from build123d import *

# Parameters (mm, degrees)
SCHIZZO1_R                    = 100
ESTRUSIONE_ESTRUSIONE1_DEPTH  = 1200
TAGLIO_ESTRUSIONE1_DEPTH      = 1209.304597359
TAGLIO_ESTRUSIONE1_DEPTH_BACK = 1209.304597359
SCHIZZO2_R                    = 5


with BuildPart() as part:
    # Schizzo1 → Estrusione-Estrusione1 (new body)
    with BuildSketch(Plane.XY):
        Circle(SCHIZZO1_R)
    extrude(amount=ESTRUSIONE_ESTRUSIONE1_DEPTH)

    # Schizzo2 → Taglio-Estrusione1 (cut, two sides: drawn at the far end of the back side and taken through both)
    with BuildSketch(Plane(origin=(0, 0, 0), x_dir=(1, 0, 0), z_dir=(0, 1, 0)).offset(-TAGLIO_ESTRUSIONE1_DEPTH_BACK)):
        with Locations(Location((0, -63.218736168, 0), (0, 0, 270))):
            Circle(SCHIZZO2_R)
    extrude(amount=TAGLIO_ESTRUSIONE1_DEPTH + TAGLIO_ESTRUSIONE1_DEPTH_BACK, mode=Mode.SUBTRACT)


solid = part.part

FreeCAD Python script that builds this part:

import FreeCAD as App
import Part
import Sketcher
Q = App.Units.Quantity

doc = App.newDocument("Part")
body = doc.addObject("PartDesign::Body", "Body")

# Sketch on XY plane
sketch1 = body.newObject("Sketcher::SketchObject", "Sketch")
sketch1.AttachmentSupport = (doc.getObject("XY_Plane"), [""])
sketch1.MapMode = "FlatFace"
sketch1.addGeometry(Part.Circle(App.Vector(0, 0, 0), App.Vector(0, 0, 1), 100), False)
sketch1.addConstraint(Sketcher.Constraint("Coincident", 0, 3, -1, 1))
sketch1.addConstraint(Sketcher.Constraint("Diameter", 0, Q("200 mm")))
pad1 = body.newObject("PartDesign::Pad", "Pad")
pad1.Profile = sketch1
pad1.Length = 1200

# Sketch on XZ plane
sketch2 = body.newObject("Sketcher::SketchObject", "Sketch001")
sketch2.AttachmentSupport = (doc.getObject("XZ_Plane"), [""])
sketch2.MapMode = "FlatFace"
sketch2.addGeometry(Part.Circle(App.Vector(0, 63, 0), App.Vector(0, 0, 1), 5), False)
sketch2.addConstraint(Sketcher.Constraint("PointOnObject", 0, 3, -2))
sketch2.addConstraint(Sketcher.Constraint("Diameter", 0, Q("10 mm")))
sketch2.addConstraint(Sketcher.Constraint("DistanceY", -1, 1, 0, 3, Q("63.218736 mm")))
pocket1 = body.newObject("PartDesign::Pocket", "Pocket")
pocket1.Profile = sketch2
pocket1.Type = "ThroughAll"
pocket1.Midplane = True

doc.recompute()
